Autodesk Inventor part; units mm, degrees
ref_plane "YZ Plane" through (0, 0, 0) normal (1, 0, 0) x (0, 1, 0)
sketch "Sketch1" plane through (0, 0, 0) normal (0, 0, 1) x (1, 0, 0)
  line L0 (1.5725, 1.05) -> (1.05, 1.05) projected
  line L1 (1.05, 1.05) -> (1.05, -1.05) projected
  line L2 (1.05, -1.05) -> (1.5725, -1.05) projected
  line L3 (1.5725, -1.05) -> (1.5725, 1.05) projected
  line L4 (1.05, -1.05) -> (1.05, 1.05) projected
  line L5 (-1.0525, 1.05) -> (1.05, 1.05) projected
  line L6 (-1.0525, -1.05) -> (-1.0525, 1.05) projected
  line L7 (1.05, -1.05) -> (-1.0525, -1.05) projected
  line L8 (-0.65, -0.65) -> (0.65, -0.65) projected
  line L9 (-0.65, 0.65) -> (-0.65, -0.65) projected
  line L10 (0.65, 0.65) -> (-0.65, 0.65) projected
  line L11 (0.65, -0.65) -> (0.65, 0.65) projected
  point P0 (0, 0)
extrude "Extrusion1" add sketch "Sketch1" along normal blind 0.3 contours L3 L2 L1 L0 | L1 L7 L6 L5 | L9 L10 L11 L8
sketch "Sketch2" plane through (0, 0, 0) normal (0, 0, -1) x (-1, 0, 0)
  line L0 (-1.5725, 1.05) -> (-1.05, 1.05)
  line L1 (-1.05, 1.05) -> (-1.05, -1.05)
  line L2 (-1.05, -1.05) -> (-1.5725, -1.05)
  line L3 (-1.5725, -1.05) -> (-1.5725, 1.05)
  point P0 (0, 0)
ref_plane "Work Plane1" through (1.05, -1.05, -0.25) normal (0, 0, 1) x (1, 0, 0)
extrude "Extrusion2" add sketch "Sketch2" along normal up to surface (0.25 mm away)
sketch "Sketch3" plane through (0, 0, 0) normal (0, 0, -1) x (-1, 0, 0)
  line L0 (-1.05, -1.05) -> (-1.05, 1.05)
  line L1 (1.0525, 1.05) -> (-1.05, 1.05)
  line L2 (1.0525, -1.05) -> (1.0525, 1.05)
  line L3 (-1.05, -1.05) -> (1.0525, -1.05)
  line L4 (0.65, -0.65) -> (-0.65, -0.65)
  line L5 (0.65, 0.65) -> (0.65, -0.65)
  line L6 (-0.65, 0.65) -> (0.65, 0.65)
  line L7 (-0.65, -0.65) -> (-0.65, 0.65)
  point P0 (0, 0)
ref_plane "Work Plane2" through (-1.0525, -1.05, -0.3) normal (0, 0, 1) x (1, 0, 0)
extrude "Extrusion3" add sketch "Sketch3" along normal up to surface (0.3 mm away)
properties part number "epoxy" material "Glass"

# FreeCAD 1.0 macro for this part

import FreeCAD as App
import Part
import Sketcher
Q = App.Units.Quantity

doc = App.newDocument("Part")
body = doc.addObject("PartDesign::Body", "Body")

# Sketch on XY plane
sketch1 = body.newObject("Sketcher::SketchObject", "Sketch")
sketch1.AttachmentSupport = (doc.getObject("XY_Plane"), [""])
sketch1.MapMode = "FlatFace"
sketch1.addGeometry([
    Part.LineSegment(App.Vector(1.5725, -1.05, 0), App.Vector(1.5725, 1.05, 0)),
    Part.LineSegment(App.Vector(1.5725, 1.05, 0), App.Vector(-1.0525, 1.05, 0)),
    Part.LineSegment(App.Vector(-1.0525, 1.05, 0), App.Vector(-1.0525, -1.05, 0)),
    Part.LineSegment(App.Vector(-1.0525, -1.05, 0), App.Vector(1.5725, -1.05, 0)),
], False)
sketch1.addConstraint([
    Sketcher.Constraint("Coincident", 0, 2, 1, 1),
    Sketcher.Constraint("Coincident", 1, 2, 2, 1),
    Sketcher.Constraint("Coincident", 2, 2, 3, 1),
    Sketcher.Constraint("Coincident", 3, 2, 0, 1),
    Sketcher.Constraint("Vertical", 0),
    Sketcher.Constraint("Horizontal", 1),
    Sketcher.Constraint("Vertical", 2),
    Sketcher.Constraint("Horizontal", 3),
    Sketcher.Constraint("DistanceY", 0, 1, 0, 2, Q("2.1 mm")),
    Sketcher.Constraint("DistanceX", 1, 2, 1, 1, Q("2.625 mm")),
    Sketcher.Constraint("DistanceY", -1, 1, 0, 2, Q("1.05 mm")),
    Sketcher.Constraint("DistanceX", -1, 1, 0, 2, Q("1.5725 mm")),
])
pad1 = body.newObject("PartDesign::Pad", "Pad")
pad1.Profile = sketch1
pad1.Length = 0.3

# Sketch on XY plane
sketch2 = body.newObject("Sketcher::SketchObject", "Sketch001")
sketch2.AttachmentSupport = (doc.getObject("XY_Plane"), [""])
sketch2.MapMode = "FlatFace"
sketch2.addGeometry([
    Part.LineSegment(App.Vector(1.05, 1.05, 0), App.Vector(1.5725, 1.05, 0)),
    Part.LineSegment(App.Vector(1.5725, 1.05, 0), App.Vector(1.5725, -1.05, 0)),
    Part.LineSegment(App.Vector(1.5725, -1.05, 0), App.Vector(1.05, -1.05, 0)),
    Part.LineSegment(App.Vector(1.05, -1.05, 0), App.Vector(1.05, 1.05, 0)),
], False)
sketch2.addConstraint([
    Sketcher.Constraint("Coincident", 0, 2, 1, 1),
    Sketcher.Constraint("Coincident", 1, 2, 2, 1),
    Sketcher.Constraint("Coincident", 2, 2, 3, 1),
    Sketcher.Constraint("Coincident", 3, 2, 0, 1),
    Sketcher.Constraint("Horizontal", 0),
    Sketcher.Constraint("Vertical", 1),
    Sketcher.Constraint("Horizontal", 2),
    Sketcher.Constraint("Vertical", 3),
    Sketcher.Constraint("DistanceY", 1, 2, 1, 1, Q("2.1 mm")),
    Sketcher.Constraint("DistanceY", -1, 1, 0, 2, Q("1.05 mm")),
    Sketcher.Constraint("DistanceX", -1, 1, 2, 2, Q("1.05 mm")),
    Sketcher.Constraint("DistanceX", 0, 1, 0, 2, Q("0.5225 mm")),
])
pad2 = body.newObject("PartDesign::Pad", "Pad001")
pad2.Profile = sketch2
pad2.Length = 0.25
pad2.Reversed = True

# Sketch on XY plane
sketch3 = body.newObject("Sketcher::SketchObject", "Sketch002")
sketch3.AttachmentSupport = (doc.getObject("XY_Plane"), [""])
sketch3.MapMode = "FlatFace"
sketch3.addGeometry([
    Part.LineSegment(App.Vector(1.05, 1.05, 0), App.Vector(1.05, -1.05, 0)),  # 0
    Part.LineSegment(App.Vector(1.05, -1.05, 0), App.Vector(-1.0525, -1.05, 0)),  # 1
    Part.LineSegment(App.Vector(-1.0525, -1.05, 0), App.Vector(-1.0525, 1.05, 0)),  # 2
    Part.LineSegment(App.Vector(-1.0525, 1.05, 0), App.Vector(1.05, 1.05, 0)),  # 3
    Part.LineSegment(App.Vector(-0.65, 0.65, 0), App.Vector(-0.65, -0.65, 0)),  # 4
    Part.LineSegment(App.Vector(-0.65, -0.65, 0), App.Vector(0.65, -0.65, 0)),  # 5
    Part.LineSegment(App.Vector(0.65, -0.65, 0), App.Vector(0.65, 0.65, 0)),  # 6
    Part.LineSegment(App.Vector(0.65, 0.65, 0), App.Vector(-0.65, 0.65, 0)),  # 7
], False)
sketch3.addConstraint([
    Sketcher.Constraint("Coincident", 0, 2, 1, 1),
    Sketcher.Constraint("Coincident", 1, 2, 2, 1),
    Sketcher.Constraint("Coincident", 2, 2, 3, 1),
    Sketcher.Constraint("Coincident", 3, 2, 0, 1),
    Sketcher.Constraint("Coincident", 4, 2, 5, 1),
    Sketcher.Constraint("Coincident", 5, 2, 6, 1),
    Sketcher.Constraint("Coincident", 6, 2, 7, 1),
    Sketcher.Constraint("Coincident", 7, 2, 4, 1),
    Sketcher.Constraint("Vertical", 0),
    Sketcher.Constraint("Horizontal", 1),
    Sketcher.Constraint("Vertical", 2),
    Sketcher.Constraint("Horizontal", 3),
    Sketcher.Constraint("Vertical", 4),
    Sketcher.Constraint("Horizontal", 5),
    Sketcher.Constraint("Vertical", 6),
    Sketcher.Constraint("Horizontal", 7),
    Sketcher.Constraint("Symmetric", 4, 2, 6, 2, -1, 1),
    Sketcher.Constraint("Equal", 7, 4),
    Sketcher.Constraint("DistanceX", 5, 1, 5, 2, Q("1.3 mm")),
    Sketcher.Constraint("DistanceY", 0, 2, 0, 1, Q("2.1 mm")),
    Sketcher.Constraint("DistanceY", 1, 2, 4, 2, Q("0.4 mm")),
    Sketcher.Constraint("DistanceX", 4, 2, 0, 2, Q("1.7 mm")),
    Sketcher.Constraint("DistanceX", 1, 2, 1, 1, Q("2.1025 mm")),
])
pad3 = body.newObject("PartDesign::Pad", "Pad002")
pad3.Profile = sketch3
pad3.Length = 0.3
pad3.Reversed = True

doc.recompute()
